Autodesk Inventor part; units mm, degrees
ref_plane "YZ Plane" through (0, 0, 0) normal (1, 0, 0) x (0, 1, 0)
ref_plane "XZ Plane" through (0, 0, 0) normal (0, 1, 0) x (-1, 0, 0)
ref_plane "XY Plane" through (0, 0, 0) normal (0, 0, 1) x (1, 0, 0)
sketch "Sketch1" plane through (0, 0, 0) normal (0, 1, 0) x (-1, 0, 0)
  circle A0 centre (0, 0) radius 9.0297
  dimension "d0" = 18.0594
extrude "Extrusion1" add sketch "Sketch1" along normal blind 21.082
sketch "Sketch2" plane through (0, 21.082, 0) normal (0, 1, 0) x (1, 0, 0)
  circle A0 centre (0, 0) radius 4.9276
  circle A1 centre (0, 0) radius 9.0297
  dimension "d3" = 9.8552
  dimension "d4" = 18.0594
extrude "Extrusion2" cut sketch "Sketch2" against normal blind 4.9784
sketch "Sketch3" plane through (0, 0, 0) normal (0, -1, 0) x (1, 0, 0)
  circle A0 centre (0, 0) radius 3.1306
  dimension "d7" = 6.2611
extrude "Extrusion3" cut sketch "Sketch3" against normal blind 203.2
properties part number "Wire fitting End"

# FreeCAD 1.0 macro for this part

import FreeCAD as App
import Part
import Sketcher
from FreeCAD import Vector
Q = App.Units.Quantity

doc = App.newDocument("Part")
body = doc.addObject("PartDesign::Body", "Body")

sketch1 = body.newObject("Sketcher::SketchObject", "Sketch")
sketch1.AttachmentSupport = (doc.getObject("XZ_Plane"), [""])
sketch1.MapMode = "FlatFace"
sketch1.addGeometry(Part.Circle(Vector(0, 0, 0), Vector(0, 0, 1), 9), False)
sketch1.addConstraint(Sketcher.Constraint("Coincident", 0, 3, -1, 1))
sketch1.addConstraint(Sketcher.Constraint("Diameter", 0, Q("0.711 in")))
pad1 = body.newObject("PartDesign::Pad", "Pad")
pad1.Profile = sketch1
pad1.Length = Q("0.83 in")
pad1.Reversed = True

sketch2 = body.newObject("Sketcher::SketchObject", "Sketch001")
sketch2.AttachmentSupport = (doc.getObject("XZ_Plane"), [""])
sketch2.MapMode = "FlatFace"
sketch2.AttachmentOffset = App.Placement(Vector(0, 0, -0.83 * 25.4), App.Rotation())
sketch2.addGeometry(Part.Circle(Vector(0, 0, 0), Vector(0, 0, 1), 9), False)
sketch2.addGeometry(Part.Circle(Vector(0, 0, 0), Vector(0, 0, 1), 4.9), False)
sketch2.addConstraint(Sketcher.Constraint("Coincident", 0, 3, -1, 1))
sketch2.addConstraint(Sketcher.Constraint("Coincident", 1, 3, -1, 1))
sketch2.addConstraint(Sketcher.Constraint("Diameter", 0, Q("0.711 in")))
sketch2.addConstraint(Sketcher.Constraint("Diameter", 1, Q("0.388 in")))
pocket1 = body.newObject("PartDesign::Pocket", "Pocket")
pocket1.Profile = sketch2
pocket1.Length = Q("0.196 in")
pocket1.Reversed = True

sketch3 = body.newObject("Sketcher::SketchObject", "Sketch002")
sketch3.AttachmentSupport = (doc.getObject("XZ_Plane"), [""])
sketch3.MapMode = "FlatFace"
sketch3.addGeometry(Part.Circle(Vector(0, 0, 0), Vector(0, 0, 1), 3.1), False)
sketch3.addConstraint(Sketcher.Constraint("Coincident", 0, 3, -1, 1))
sketch3.addConstraint(Sketcher.Constraint("Diameter", 0, Q("0.2465 in")))
pocket2 = body.newObject("PartDesign::Pocket", "Pocket001")
pocket2.Profile = sketch3
pocket2.Length = Q("8 in")

doc.recompute()
